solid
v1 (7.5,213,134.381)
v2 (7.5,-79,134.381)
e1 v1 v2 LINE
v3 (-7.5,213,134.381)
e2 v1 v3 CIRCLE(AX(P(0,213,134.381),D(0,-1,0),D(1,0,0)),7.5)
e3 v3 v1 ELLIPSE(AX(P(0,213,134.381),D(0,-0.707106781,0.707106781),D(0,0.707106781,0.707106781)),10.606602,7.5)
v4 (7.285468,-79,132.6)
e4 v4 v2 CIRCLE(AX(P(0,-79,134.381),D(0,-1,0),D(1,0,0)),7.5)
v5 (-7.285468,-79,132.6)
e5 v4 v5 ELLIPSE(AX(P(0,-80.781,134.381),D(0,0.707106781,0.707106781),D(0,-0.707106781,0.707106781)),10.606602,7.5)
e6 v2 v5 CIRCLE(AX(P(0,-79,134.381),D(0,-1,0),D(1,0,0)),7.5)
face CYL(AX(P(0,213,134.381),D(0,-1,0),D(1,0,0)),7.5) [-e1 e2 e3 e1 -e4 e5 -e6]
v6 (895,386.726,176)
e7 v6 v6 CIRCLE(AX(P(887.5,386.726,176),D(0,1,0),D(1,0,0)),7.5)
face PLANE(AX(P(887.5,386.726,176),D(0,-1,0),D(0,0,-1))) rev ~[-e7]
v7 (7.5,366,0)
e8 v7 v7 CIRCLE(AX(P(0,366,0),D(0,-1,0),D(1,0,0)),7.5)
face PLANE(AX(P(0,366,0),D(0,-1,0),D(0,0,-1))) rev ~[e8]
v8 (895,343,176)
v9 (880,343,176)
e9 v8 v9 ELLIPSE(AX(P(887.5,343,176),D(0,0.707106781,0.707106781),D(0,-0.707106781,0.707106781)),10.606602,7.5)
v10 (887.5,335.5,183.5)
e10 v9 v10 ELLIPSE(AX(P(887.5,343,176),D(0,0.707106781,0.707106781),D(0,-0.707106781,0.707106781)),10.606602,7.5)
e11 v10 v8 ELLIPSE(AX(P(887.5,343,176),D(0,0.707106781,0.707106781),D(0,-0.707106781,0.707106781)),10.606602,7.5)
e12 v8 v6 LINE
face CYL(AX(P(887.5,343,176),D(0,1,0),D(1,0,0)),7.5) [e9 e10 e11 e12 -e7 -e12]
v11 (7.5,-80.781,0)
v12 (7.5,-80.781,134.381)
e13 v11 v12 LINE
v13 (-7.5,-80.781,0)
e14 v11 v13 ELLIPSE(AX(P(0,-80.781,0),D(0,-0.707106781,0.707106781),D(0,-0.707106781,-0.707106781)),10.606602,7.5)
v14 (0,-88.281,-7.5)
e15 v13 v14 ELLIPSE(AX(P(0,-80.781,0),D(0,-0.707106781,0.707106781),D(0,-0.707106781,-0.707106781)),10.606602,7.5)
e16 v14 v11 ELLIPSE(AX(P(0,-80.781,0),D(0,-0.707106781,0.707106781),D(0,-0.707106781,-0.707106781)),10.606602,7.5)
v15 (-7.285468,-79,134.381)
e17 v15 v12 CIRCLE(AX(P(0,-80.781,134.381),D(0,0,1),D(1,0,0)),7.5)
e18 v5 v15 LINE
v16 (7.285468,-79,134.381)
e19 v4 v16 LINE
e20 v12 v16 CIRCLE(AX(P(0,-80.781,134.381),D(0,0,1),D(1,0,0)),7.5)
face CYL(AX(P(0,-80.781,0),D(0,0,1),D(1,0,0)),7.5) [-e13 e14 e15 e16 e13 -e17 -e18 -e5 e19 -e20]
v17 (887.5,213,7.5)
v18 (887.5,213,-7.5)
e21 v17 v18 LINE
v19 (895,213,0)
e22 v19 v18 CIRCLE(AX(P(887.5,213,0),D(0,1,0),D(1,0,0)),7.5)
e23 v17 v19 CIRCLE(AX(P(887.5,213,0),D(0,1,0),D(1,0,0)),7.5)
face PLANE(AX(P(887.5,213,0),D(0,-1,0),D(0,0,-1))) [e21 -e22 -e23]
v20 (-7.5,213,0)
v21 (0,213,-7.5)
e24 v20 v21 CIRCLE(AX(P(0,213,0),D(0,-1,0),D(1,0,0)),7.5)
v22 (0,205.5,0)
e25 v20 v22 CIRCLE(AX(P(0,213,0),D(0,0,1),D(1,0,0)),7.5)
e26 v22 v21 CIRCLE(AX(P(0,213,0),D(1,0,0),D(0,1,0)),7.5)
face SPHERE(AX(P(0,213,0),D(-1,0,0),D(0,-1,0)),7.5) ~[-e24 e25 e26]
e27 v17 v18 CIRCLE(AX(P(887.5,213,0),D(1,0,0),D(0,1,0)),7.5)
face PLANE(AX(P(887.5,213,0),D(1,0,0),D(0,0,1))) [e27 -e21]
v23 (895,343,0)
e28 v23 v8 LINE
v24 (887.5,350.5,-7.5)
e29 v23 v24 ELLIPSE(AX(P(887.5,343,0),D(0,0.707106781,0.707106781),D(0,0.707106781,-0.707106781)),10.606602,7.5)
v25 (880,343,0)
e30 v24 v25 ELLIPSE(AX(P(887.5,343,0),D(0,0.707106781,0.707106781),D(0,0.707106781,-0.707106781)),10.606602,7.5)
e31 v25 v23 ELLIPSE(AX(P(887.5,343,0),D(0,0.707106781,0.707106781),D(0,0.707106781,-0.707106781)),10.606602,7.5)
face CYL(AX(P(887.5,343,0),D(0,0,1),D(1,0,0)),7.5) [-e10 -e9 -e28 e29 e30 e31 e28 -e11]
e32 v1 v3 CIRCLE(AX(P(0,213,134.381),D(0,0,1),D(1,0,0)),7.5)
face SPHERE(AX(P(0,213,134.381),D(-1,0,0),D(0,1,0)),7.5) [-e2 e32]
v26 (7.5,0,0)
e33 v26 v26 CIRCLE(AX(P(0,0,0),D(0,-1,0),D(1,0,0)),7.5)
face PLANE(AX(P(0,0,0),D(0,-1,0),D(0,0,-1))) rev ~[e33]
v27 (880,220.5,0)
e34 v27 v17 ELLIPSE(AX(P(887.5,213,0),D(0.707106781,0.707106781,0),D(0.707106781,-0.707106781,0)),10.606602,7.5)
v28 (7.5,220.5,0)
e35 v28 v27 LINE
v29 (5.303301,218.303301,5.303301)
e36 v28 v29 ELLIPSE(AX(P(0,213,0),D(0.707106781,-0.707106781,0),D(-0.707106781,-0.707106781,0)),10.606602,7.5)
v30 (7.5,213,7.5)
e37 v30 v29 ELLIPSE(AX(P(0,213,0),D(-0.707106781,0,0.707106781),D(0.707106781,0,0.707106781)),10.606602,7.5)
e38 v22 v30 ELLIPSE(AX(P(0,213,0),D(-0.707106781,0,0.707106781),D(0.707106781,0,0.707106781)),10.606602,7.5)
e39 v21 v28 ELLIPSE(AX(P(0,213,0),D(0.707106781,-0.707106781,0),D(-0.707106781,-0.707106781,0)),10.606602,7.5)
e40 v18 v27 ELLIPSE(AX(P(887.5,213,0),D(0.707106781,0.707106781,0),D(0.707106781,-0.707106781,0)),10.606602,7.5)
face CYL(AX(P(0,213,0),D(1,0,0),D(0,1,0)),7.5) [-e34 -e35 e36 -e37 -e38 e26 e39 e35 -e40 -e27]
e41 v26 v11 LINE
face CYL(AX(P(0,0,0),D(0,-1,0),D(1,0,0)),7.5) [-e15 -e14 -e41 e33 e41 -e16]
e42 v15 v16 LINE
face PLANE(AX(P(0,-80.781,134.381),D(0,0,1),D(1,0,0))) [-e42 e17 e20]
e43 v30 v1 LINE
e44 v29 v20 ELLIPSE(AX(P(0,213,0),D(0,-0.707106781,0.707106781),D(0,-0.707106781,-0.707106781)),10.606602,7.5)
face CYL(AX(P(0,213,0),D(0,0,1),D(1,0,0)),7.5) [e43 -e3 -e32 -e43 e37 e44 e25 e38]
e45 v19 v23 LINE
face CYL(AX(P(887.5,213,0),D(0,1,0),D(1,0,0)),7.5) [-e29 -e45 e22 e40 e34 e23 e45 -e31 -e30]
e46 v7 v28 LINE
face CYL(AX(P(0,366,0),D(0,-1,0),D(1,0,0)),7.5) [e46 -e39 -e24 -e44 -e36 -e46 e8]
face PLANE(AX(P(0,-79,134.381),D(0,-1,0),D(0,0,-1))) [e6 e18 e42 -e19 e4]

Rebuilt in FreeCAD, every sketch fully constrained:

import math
import FreeCAD as App
import Part
import Sketcher
Q = App.Units.Quantity

doc = App.newDocument("Part")
body = doc.addObject("PartDesign::Body", "Body")

sketch1 = body.newObject("Sketcher::SketchObject", "Sketch")
sketch1.AttachmentSupport = (doc.getObject("XZ_Plane"), [""])
sketch1.MapMode = "FlatFace"
sketch1.addGeometry(Part.Circle(App.Vector(0, 0, 0), App.Vector(0, 0, 1), 8), False)
sketch1.addConstraint([
    Sketcher.Constraint("Coincident", 0, 3, -1, 1),
    Sketcher.Constraint("Diameter", 0, Q("15 mm")),
])

sketch2 = body.newObject("Sketcher::SketchObject", "Sketch001")
sketch2.AttachmentSupport = (doc.getObject("YZ_Plane"), [""])
sketch2.MapMode = "FlatFace"
sketch2.addGeometry([
    Part.LineSegment(App.Vector(0, 0, 0), App.Vector(-81, 0, 0)),
    Part.LineSegment(App.Vector(-81, 0, 0), App.Vector(-81, 134, 0)),
], False)
sketch2.addConstraint([
    Sketcher.Constraint("Coincident", 0, 2, 1, 1),
    Sketcher.Constraint("Horizontal", 0),
    Sketcher.Constraint("Vertical", 1),
    Sketcher.Constraint("Coincident", 0, 1, -1, 1),
    Sketcher.Constraint("DistanceX", 0, 2, 0, 1, Q("80.781 mm")),
    Sketcher.Constraint("DistanceY", 1, 1, 1, 2, Q("134.381 mm")),
])
doc.recompute()

additivepipe = body.newObject("PartDesign::AdditivePipe", "AdditivePipe")
additivepipe.Profile = sketch1
additivepipe.Spine = (sketch2, ["Edge1", "Edge2"])
additivepipe.Transition = "Right corner"
body2 = doc.addObject("PartDesign::Body", "Body001")

sketch3 = body2.newObject("Sketcher::SketchObject", "Sketch002")
sketch3.AttachmentSupport = (doc.getObject("XZ_Plane001"), [""])
sketch3.MapMode = "FlatFace"
sketch3.AttachmentOffset = App.Placement(App.Vector(0, 0, -366), App.Rotation())
sketch3.addGeometry(Part.Circle(App.Vector(0, 0, 0), App.Vector(0, 0, 1), 8), False)
sketch3.addConstraint([
    Sketcher.Constraint("Coincident", 0, 3, -1, 1),
    Sketcher.Constraint("Diameter", 0, Q("15 mm")),
])

sketch4 = body2.newObject("Sketcher::SketchObject", "Sketch003")
sketch4.AttachmentSupport = (doc.getObject("XY_Plane001"), [""])
sketch4.MapMode = "FlatFace"
sketch4.addGeometry(Part.LineSegment(App.Vector(0, 276, 0), App.Vector(0, 123, 0)), False)
sketch4.addConstraint([
    Sketcher.Constraint("Vertical", 0),
    Sketcher.Constraint("PointOnObject", 0, 1, -2),
    Sketcher.Constraint("DistanceY", 0, 2, 0, 1, Q("153 mm")),
    Sketcher.Constraint("DistanceY", -1, 1, 0, 1, Q("276.327225 mm")),
])
doc.recompute()

additivepipe2 = body2.newObject("PartDesign::AdditivePipe", "AdditivePipe001")
additivepipe2.Profile = sketch3
additivepipe2.Spine = (sketch4, ["Edge1"])

sketch5 = body2.newObject("Sketcher::SketchObject", "Sketch004")
sketch5.AttachmentSupport = (doc.getObject("XY_Plane001"), [""])
sketch5.MapMode = "FlatFace"
sketch5.addGeometry(Part.Circle(App.Vector(0, 213, 0), App.Vector(0, 0, 1), 8), False)
sketch5.addConstraint([
    Sketcher.Constraint("PointOnObject", 0, 3, -2),
    Sketcher.Constraint("Diameter", 0, Q("15 mm")),
    Sketcher.Constraint("DistanceY", -1, 1, 0, 3, Q("213 mm")),
])

sketch6 = body2.newObject("Sketcher::SketchObject", "Sketch005")
sketch6.AttachmentSupport = (doc.getObject("XZ_Plane001"), [""])
sketch6.MapMode = "FlatFace"
sketch6.AttachmentOffset = App.Placement(App.Vector(0, 0, 80.781), App.Rotation())
sketch6.addGeometry(Part.LineSegment(App.Vector(0, 0, 0), App.Vector(0, 134, 0)), False)
sketch6.addConstraint([
    Sketcher.Constraint("Vertical", 0),
    Sketcher.Constraint("Coincident", 0, 1, -1, 1),
    Sketcher.Constraint("DistanceY", 0, 1, 0, 2, Q("134.381 mm")),
])
doc.recompute()

additivepipe3 = body2.newObject("PartDesign::AdditivePipe", "AdditivePipe002")
additivepipe3.Profile = sketch5
additivepipe3.Spine = (sketch6, ["Edge1"])
body.AllowCompound = True
doc.recompute()

boolean = body.newObject("PartDesign::Boolean", "Boolean")
boolean.Type = "Fuse"
boolean.addObjects([body2])

sketch7 = body.newObject("Sketcher::SketchObject", "Sketch006")
sketch7.AttachmentSupport = (doc.getObject("XZ_Plane"), [""])
sketch7.MapMode = "FlatFace"
sketch7.AttachmentOffset = App.Placement(App.Vector(0, 0, -213), App.Rotation())
sketch7.addGeometry(Part.Circle(App.Vector(0, 134, 0), App.Vector(0, 0, 1), 8), False)
sketch7.addConstraint([
    Sketcher.Constraint("PointOnObject", 0, 3, -2),
    Sketcher.Constraint("Diameter", 0, Q("15 mm")),
    Sketcher.Constraint("DistanceY", -1, 1, 0, 3, Q("134.381 mm")),
])

sketch8 = body.newObject("Sketcher::SketchObject", "Sketch007")
sketch8.AttachmentSupport = (doc.getObject("XY_Plane"), [""])
sketch8.MapMode = "FlatFace"
sketch8.AttachmentOffset = App.Placement(App.Vector(0, 0, 134.381), App.Rotation())
sketch8.addGeometry(Part.LineSegment(App.Vector(0, 211, 0), App.Vector(0, -81, 0)), False)
sketch8.addConstraint([
    Sketcher.Constraint("Vertical", 0),
    Sketcher.Constraint("PointOnObject", 0, 1, -2),
    Sketcher.Constraint("DistanceY", 0, 2, 0, 1, Q("292 mm")),
    Sketcher.Constraint("DistanceY", -1, 1, 0, 1, Q("211.219 mm")),
])
doc.recompute()

additivepipe4 = body.newObject("PartDesign::AdditivePipe", "AdditivePipe003")
additivepipe4.Profile = sketch7
additivepipe4.Spine = (sketch8, ["Edge1"])

sketch9 = body.newObject("Sketcher::SketchObject", "Sketch008")
sketch9.AttachmentSupport = (doc.getObject("XY_Plane"), [""])
sketch9.MapMode = "FlatFace"
sketch9.AttachmentOffset = App.Placement(App.Vector(0, 0, 134.381), App.Rotation())
sketch9.addGeometry([
    Part.LineSegment(App.Vector(-8, 213, 0), App.Vector(8, 213, 0)),
    Part.ArcOfCircle(Part.Circle(App.Vector(0, 213, 0), App.Vector(0, 0, 1), 8), math.radians(0), math.radians(180)),
], False)
sketch9.addGeometry(Part.LineSegment(App.Vector(8, 213, 0), App.Vector(-8, 213, 0)), True)
sketch9.addConstraint([
    Sketcher.Constraint("Coincident", 0, 1, 1, 2),
    Sketcher.Constraint("Coincident", 1, 1, 0, 2),
    Sketcher.Constraint("Horizontal", 0),
    Sketcher.Constraint("Horizontal", 2),
    Sketcher.Constraint("Coincident", 2, 1, 1, 1),
    Sketcher.Constraint("PointOnObject", 1, 3, -2),
    Sketcher.Constraint("Horizontal", 1, 3, 0, 1),
    Sketcher.Constraint("Equal", 0, 2),
    Sketcher.Constraint("Radius", 1, Q("7.5 mm")),
    Sketcher.Constraint("DistanceY", -1, 1, 1, 3, Q("213 mm")),
])
revolution = body.newObject("PartDesign::Revolution", "Revolution")
revolution.Profile = sketch9
revolution.ReferenceAxis = (sketch9, ["Axis0"])
revolution.Angle = 360

sketch10 = body.newObject("Sketcher::SketchObject", "Sketch009")
sketch10.AttachmentSupport = (doc.getObject("XY_Plane"), [""])
sketch10.MapMode = "FlatFace"
sketch10.addGeometry([
    Part.ArcOfCircle(Part.Circle(App.Vector(0, 213, 0), App.Vector(0, 0, 1), 8), math.radians(180), math.radians(360)),
    Part.LineSegment(App.Vector(-8, 213, 0), App.Vector(8, 213, 0)),
], False)
sketch10.addGeometry(Part.LineSegment(App.Vector(-8, 213, 0), App.Vector(8, 213, 0)), True)
sketch10.addConstraint([
    Sketcher.Constraint("Coincident", 0, 1, 1, 1),
    Sketcher.Constraint("Coincident", 1, 2, 0, 2),
    Sketcher.Constraint("Horizontal", 1),
    Sketcher.Constraint("Horizontal", 2),
    Sketcher.Constraint("Coincident", 2, 1, 0, 1),
    Sketcher.Constraint("PointOnObject", 0, 3, -2),
    Sketcher.Constraint("Equal", 1, 2),
    Sketcher.Constraint("Radius", 0, Q("7.5 mm")),
    Sketcher.Constraint("DistanceY", -1, 1, 0, 3, Q("213 mm")),
    Sketcher.Constraint("DistanceY", -1, 1, 0, 1, Q("213 mm")),
])
revolution2 = body.newObject("PartDesign::Revolution", "Revolution001")
revolution2.Profile = sketch10
revolution2.ReferenceAxis = (sketch10, ["Axis0"])
revolution2.Angle = 360

sketch11 = body.newObject("Sketcher::SketchObject", "Sketch010")
sketch11.AttachmentSupport = (doc.getObject("YZ_Plane"), [""])
sketch11.MapMode = "FlatFace"
sketch11.addGeometry(Part.Circle(App.Vector(213, 0, 0), App.Vector(0, 0, 1), 8), False)
sketch11.addConstraint([
    Sketcher.Constraint("PointOnObject", 0, 3, -1),
    Sketcher.Constraint("Diameter", 0, Q("15 mm")),
    Sketcher.Constraint("DistanceX", -1, 1, 0, 3, Q("213 mm")),
])

sketch12 = body.newObject("Sketcher::SketchObject", "Sketch011")
sketch12.AttachmentSupport = (doc.getObject("XY_Plane"), [""])
sketch12.MapMode = "FlatFace"
sketch12.addGeometry(Part.LineSegment(App.Vector(0, 213, 0), App.Vector(888, 213, 0)), False)
sketch12.addConstraint([
    Sketcher.Constraint("Horizontal", 0),
    Sketcher.Constraint("PointOnObject", 0, 1, -2),
    Sketcher.Constraint("DistanceX", 0, 1, 0, 2, Q("887.5 mm")),
    Sketcher.Constraint("DistanceY", -1, 1, 0, 1, Q("213 mm")),
])
doc.recompute()

additivepipe5 = body.newObject("PartDesign::AdditivePipe", "AdditivePipe004")
additivepipe5.Profile = sketch11
additivepipe5.Spine = (sketch12, ["Edge1"])

sketch13 = body.newObject("Sketcher::SketchObject", "Sketch012")
sketch13.AttachmentSupport = (doc.getObject("XZ_Plane"), [""])
sketch13.MapMode = "FlatFace"
sketch13.AttachmentOffset = App.Placement(App.Vector(0, 0, -213), App.Rotation())
sketch13.addGeometry(Part.Circle(App.Vector(888, 0, 0), App.Vector(0, 0, 1), 8), False)
sketch13.addConstraint([
    Sketcher.Constraint("PointOnObject", 0, 3, -1),
    Sketcher.Constraint("Diameter", 0, Q("15 mm")),
    Sketcher.Constraint("DistanceX", -1, 1, 0, 3, Q("887.5 mm")),
])

sketch14 = body.newObject("Sketcher::SketchObject", "Sketch013")
sketch14.AttachmentSupport = (doc.getObject("YZ_Plane"), [""])
sketch14.MapMode = "FlatFace"
sketch14.addGeometry([
    Part.LineSegment(App.Vector(213, 0, 0), App.Vector(343, 0, 0)),
    Part.LineSegment(App.Vector(343, 0, 0), App.Vector(343, 176, 0)),
    Part.LineSegment(App.Vector(343, 176, 0), App.Vector(387, 176, 0)),
], False)
sketch14.addConstraint([
    Sketcher.Constraint("Coincident", 0, 2, 1, 1),
    Sketcher.Constraint("Coincident", 1, 2, 2, 1),
    Sketcher.Constraint("Horizontal", 0),
    Sketcher.Constraint("Vertical", 1),
    Sketcher.Constraint("Horizontal", 2),
    Sketcher.Constraint("PointOnObject", 0, 1, -1),
    Sketcher.Constraint("DistanceX", 0, 1, 0, 2, Q("130 mm")),
    Sketcher.Constraint("DistanceY", 1, 1, 1, 2, Q("176 mm")),
    Sketcher.Constraint("DistanceX", -1, 1, 0, 1, Q("213 mm")),
    Sketcher.Constraint("DistanceX", 2, 1, 2, 2, Q("43.726 mm")),
])
doc.recompute()

additivepipe6 = body.newObject("PartDesign::AdditivePipe", "AdditivePipe005")
additivepipe6.Profile = sketch13
additivepipe6.Spine = (sketch14, ["Edge1", "Edge2", "Edge3"])
additivepipe6.Transition = "Right corner"

doc.recompute()
